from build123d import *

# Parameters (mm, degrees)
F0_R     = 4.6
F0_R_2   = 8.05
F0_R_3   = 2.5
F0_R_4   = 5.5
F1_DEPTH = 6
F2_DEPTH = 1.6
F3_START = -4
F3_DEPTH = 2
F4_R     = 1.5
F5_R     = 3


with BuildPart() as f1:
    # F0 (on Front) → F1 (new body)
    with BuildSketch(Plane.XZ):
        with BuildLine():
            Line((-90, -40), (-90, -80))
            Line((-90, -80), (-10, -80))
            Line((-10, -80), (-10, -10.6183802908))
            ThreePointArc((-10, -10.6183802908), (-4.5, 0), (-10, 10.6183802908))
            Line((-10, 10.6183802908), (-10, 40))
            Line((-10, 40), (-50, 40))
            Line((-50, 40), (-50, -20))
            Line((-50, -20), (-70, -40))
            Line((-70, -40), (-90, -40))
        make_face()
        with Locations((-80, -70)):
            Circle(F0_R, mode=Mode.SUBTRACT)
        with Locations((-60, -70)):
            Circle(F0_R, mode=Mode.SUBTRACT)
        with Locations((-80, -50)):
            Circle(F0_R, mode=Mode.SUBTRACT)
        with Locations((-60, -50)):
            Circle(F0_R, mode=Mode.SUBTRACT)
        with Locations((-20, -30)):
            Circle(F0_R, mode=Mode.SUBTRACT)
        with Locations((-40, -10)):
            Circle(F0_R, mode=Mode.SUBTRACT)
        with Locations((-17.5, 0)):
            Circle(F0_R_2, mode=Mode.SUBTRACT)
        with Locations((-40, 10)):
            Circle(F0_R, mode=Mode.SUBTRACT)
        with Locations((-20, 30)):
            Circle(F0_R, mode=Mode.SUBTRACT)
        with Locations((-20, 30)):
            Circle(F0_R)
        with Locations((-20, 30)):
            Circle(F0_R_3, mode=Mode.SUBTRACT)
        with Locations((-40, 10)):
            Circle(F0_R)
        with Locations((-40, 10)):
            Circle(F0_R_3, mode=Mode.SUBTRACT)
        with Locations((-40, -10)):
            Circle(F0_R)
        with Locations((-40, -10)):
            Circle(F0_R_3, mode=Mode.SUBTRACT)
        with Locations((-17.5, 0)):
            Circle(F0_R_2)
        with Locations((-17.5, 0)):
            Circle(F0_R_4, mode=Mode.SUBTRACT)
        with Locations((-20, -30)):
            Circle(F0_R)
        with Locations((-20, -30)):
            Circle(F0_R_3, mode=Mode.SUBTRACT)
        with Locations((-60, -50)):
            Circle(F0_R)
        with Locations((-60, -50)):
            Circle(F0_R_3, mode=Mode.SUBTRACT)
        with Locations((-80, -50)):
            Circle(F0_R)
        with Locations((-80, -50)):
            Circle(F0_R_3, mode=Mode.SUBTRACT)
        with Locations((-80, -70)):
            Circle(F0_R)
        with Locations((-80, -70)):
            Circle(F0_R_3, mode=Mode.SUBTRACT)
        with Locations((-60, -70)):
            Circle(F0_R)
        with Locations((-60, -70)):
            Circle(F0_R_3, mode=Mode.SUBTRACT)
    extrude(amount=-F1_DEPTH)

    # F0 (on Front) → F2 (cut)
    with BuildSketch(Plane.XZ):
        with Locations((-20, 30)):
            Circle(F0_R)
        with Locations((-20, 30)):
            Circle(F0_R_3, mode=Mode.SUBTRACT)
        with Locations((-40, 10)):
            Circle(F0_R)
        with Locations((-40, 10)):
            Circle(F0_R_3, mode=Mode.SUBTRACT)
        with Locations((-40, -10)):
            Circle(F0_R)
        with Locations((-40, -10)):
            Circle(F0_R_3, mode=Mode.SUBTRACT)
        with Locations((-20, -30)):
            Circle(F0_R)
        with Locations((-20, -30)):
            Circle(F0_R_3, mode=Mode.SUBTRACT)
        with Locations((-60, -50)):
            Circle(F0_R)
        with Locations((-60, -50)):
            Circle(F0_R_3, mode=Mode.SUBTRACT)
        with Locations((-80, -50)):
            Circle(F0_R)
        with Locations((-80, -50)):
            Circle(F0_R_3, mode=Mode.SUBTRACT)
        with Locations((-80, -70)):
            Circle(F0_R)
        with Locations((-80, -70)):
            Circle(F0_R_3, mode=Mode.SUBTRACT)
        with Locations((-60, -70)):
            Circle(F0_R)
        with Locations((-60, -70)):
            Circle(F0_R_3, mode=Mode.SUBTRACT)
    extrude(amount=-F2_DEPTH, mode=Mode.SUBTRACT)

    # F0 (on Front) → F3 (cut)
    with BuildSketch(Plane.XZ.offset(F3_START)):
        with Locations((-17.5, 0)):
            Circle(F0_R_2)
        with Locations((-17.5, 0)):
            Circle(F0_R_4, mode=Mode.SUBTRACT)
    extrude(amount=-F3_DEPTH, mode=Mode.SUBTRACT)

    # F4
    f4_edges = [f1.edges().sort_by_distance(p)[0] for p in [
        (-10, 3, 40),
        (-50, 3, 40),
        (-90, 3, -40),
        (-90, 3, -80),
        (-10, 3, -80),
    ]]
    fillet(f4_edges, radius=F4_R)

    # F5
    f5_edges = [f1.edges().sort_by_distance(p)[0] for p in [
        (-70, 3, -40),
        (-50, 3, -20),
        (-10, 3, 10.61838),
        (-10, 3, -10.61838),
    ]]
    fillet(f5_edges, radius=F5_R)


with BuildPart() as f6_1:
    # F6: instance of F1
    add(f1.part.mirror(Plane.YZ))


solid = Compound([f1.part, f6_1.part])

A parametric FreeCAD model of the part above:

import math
import FreeCAD as App
import Part
import Sketcher
from FreeCAD import Vector
Q = App.Units.Quantity


def edges_at(feature, points):
    """Names of the edges that pass closest to the given points."""
    edges = feature.Shape.Edges
    near = lambda p: min(range(len(edges)), key=lambda i: edges[i].distToShape(Part.Vertex(*p))[0])
    return sorted({f"Edge{near(p) + 1}" for p in points})

doc = App.newDocument("Part")
body = doc.addObject("PartDesign::Body", "Body")

# Sketch on XZ plane
sketch1 = body.newObject("Sketcher::SketchObject", "Sketch")
sketch1.AttachmentSupport = (doc.getObject("XZ_Plane"), [""])
sketch1.MapMode = "FlatFace"
sketch1.addGeometry([
    Part.LineSegment(Vector(-90, -40, 0), Vector(-90, -80, 0)),  # 0
    Part.LineSegment(Vector(-90, -80, 0), Vector(-10, -80, 0)),  # 1
    Part.LineSegment(Vector(-10, -80, 0), Vector(-10, -10.6, 0)),  # 2
    Part.ArcOfCircle(Part.Circle(Vector(-17.5, 0, 0), Vector(0, 0, 1), 13), math.radians(-55), math.radians(55)),  # 3
    Part.LineSegment(Vector(-10, 10.6, 0), Vector(-10, 40, 0)),  # 4
    Part.LineSegment(Vector(-10, 40, 0), Vector(-50, 40, 0)),  # 5
    Part.LineSegment(Vector(-50, 40, 0), Vector(-50, -20, 0)),  # 6
    Part.LineSegment(Vector(-50, -20, 0), Vector(-70, -40, 0)),  # 7
    Part.LineSegment(Vector(-70, -40, 0), Vector(-90, -40, 0)),  # 8
    Part.Circle(Vector(-80, -70, 0), Vector(0, 0, 1), 2.5),  # 9
    Part.Circle(Vector(-80, -50, 0), Vector(0, 0, 1), 2.5),  # 10
    Part.Circle(Vector(-60, -70, 0), Vector(0, 0, 1), 2.5),  # 11
    Part.Circle(Vector(-60, -50, 0), Vector(0, 0, 1), 2.5),  # 12
    Part.Circle(Vector(-20, -30, 0), Vector(0, 0, 1), 2.5),  # 13
    Part.Circle(Vector(-40, -10, 0), Vector(0, 0, 1), 2.5),  # 14
    Part.Circle(Vector(-17.5, 0, 0), Vector(0, 0, 1), 5.5),  # 15
    Part.Circle(Vector(-40, 10, 0), Vector(0, 0, 1), 2.5),  # 16
    Part.Circle(Vector(-20, 30, 0), Vector(0, 0, 1), 2.5),  # 17
], False)
sketch1.addConstraint([
    Sketcher.Constraint("Coincident", 0, 2, 1, 1),
    Sketcher.Constraint("Coincident", 1, 2, 2, 1),
    Sketcher.Constraint("Coincident", 2, 2, 3, 1),
    Sketcher.Constraint("Coincident", 3, 2, 4, 1),
    Sketcher.Constraint("Coincident", 4, 2, 5, 1),
    Sketcher.Constraint("Coincident", 5, 2, 6, 1),
    Sketcher.Constraint("Coincident", 6, 2, 7, 1),
    Sketcher.Constraint("Coincident", 7, 2, 8, 1),
    Sketcher.Constraint("Coincident", 8, 2, 0, 1),
    Sketcher.Constraint("Vertical", 0),
    Sketcher.Constraint("Horizontal", 1),
    Sketcher.Constraint("Vertical", 2),
    Sketcher.Constraint("Vertical", 4),
    Sketcher.Constraint("Horizontal", 5),
    Sketcher.Constraint("Vertical", 6),
    Sketcher.Constraint("Horizontal", 8),
    Sketcher.Constraint("Coincident", 15, 3, 3, 3),
    Sketcher.Constraint("Equal", 9, 10),
    Sketcher.Constraint("Equal", 10, 11),
    Sketcher.Constraint("Equal", 11, 12),
    Sketcher.Constraint("Equal", 12, 13),
    Sketcher.Constraint("Equal", 13, 14),
    Sketcher.Constraint("Equal", 14, 16),
    Sketcher.Constraint("Equal", 16, 17),
    Sketcher.Constraint("Symmetric", 14, 3, 16, 3, -1),
    Sketcher.Constraint("Symmetric", 13, 3, 17, 3, -1),
    Sketcher.Constraint("Symmetric", 2, 2, 3, 2, -1),
    Sketcher.Constraint("Horizontal", 9, 3, 11, 3),
    Sketcher.Constraint("Horizontal", 10, 3, 12, 3),
    Sketcher.Constraint("Vertical", 9, 3, 10, 3),
    Sketcher.Constraint("Vertical", 11, 3, 12, 3),
    Sketcher.Constraint("Equal", 5, 0),
    Sketcher.Constraint("Diameter", 9, Q("5 mm")),
    Sketcher.Constraint("Diameter", 15, Q("11 mm")),
    Sketcher.Constraint("Radius", 3, Q("13 mm")),
    Sketcher.Constraint("DistanceX", 1, 1, 1, 2, Q("80 mm")),
    Sketcher.Constraint("DistanceX", 5, 2, 5, 1, Q("40 mm")),
    Sketcher.Constraint("DistanceX", 8, 2, 8, 1, Q("20 mm")),
    Sketcher.Constraint("DistanceY", 6, 2, 6, 1, Q("60 mm")),
    Sketcher.Constraint("Angle", 7, Q("-135 deg")),
    Sketcher.Constraint("DistanceX", 9, 3, -1, 1, Q("80 mm")),
    Sketcher.Constraint("DistanceY", 9, 3, -1, 1, Q("70 mm")),
    Sketcher.Constraint("DistanceY", 10, 3, -1, 1, Q("50 mm")),
    Sketcher.Constraint("DistanceX", 11, 3, -1, 1, Q("60 mm")),
    Sketcher.Constraint("DistanceX", 13, 3, -1, 1, Q("20 mm")),
    Sketcher.Constraint("DistanceY", 13, 3, -1, 1, Q("30 mm")),
    Sketcher.Constraint("DistanceX", 14, 3, -1, 1, Q("40 mm")),
    Sketcher.Constraint("DistanceY", 14, 3, -1, 1, Q("10 mm")),
    Sketcher.Constraint("DistanceX", 0, 2, -1, 1, Q("90 mm")),
    Sketcher.Constraint("DistanceY", 0, 2, -1, 1, Q("80 mm")),
    Sketcher.Constraint("DistanceX", 3, 3, -1, 1, Q("17.5 mm")),
])
pad1 = body.newObject("PartDesign::Pad", "Pad")
pad1.Profile = sketch1
pad1.Length = 6
pad1.Reversed = True

# Sketch on XZ plane
sketch2 = body.newObject("Sketcher::SketchObject", "Sketch001")
sketch2.AttachmentSupport = (doc.getObject("XZ_Plane"), [""])
sketch2.MapMode = "FlatFace"
sketch2.addGeometry([
    Part.Circle(Vector(-20, 30, 0), Vector(0, 0, 1), 4.6),  # 0
    Part.Circle(Vector(-20, 30, 0), Vector(0, 0, 1), 2.5),  # 1
    Part.Circle(Vector(-40, 10, 0), Vector(0, 0, 1), 4.6),  # 2
    Part.Circle(Vector(-40, 10, 0), Vector(0, 0, 1), 2.5),  # 3
    Part.Circle(Vector(-40, -10, 0), Vector(0, 0, 1), 4.6),  # 4
    Part.Circle(Vector(-40, -10, 0), Vector(0, 0, 1), 2.5),  # 5
    Part.Circle(Vector(-20, -30, 0), Vector(0, 0, 1), 4.6),  # 6
    Part.Circle(Vector(-20, -30, 0), Vector(0, 0, 1), 2.5),  # 7
    Part.Circle(Vector(-60, -50, 0), Vector(0, 0, 1), 4.6),  # 8
    Part.Circle(Vector(-60, -50, 0), Vector(0, 0, 1), 2.5),  # 9
    Part.Circle(Vector(-80, -50, 0), Vector(0, 0, 1), 4.6),  # 10
    Part.Circle(Vector(-80, -50, 0), Vector(0, 0, 1), 2.5),  # 11
    Part.Circle(Vector(-80, -70, 0), Vector(0, 0, 1), 4.6),  # 12
    Part.Circle(Vector(-80, -70, 0), Vector(0, 0, 1), 2.5),  # 13
    Part.Circle(Vector(-60, -70, 0), Vector(0, 0, 1), 4.6),  # 14
    Part.Circle(Vector(-60, -70, 0), Vector(0, 0, 1), 2.5),  # 15
], False)
sketch2.addConstraint([
    Sketcher.Constraint("Coincident", 1, 3, 0, 3),
    Sketcher.Constraint("Coincident", 3, 3, 2, 3),
    Sketcher.Constraint("Coincident", 5, 3, 4, 3),
    Sketcher.Constraint("Coincident", 7, 3, 6, 3),
    Sketcher.Constraint("Coincident", 9, 3, 8, 3),
    Sketcher.Constraint("Coincident", 11, 3, 10, 3),
    Sketcher.Constraint("Coincident", 13, 3, 12, 3),
    Sketcher.Constraint("Coincident", 15, 3, 14, 3),
    Sketcher.Constraint("Equal", 0, 2),
    Sketcher.Constraint("Equal", 1, 3),
    Sketcher.Constraint("Equal", 2, 4),
    Sketcher.Constraint("Equal", 3, 5),
    Sketcher.Constraint("Equal", 4, 6),
    Sketcher.Constraint("Equal", 5, 7),
    Sketcher.Constraint("Equal", 6, 8),
    Sketcher.Constraint("Equal", 7, 9),
    Sketcher.Constraint("Equal", 8, 10),
    Sketcher.Constraint("Equal", 9, 11),
    Sketcher.Constraint("Equal", 10, 12),
    Sketcher.Constraint("Equal", 11, 13),
    Sketcher.Constraint("Equal", 12, 14),
    Sketcher.Constraint("Equal", 13, 15),
    Sketcher.Constraint("Symmetric", 2, 3, 4, 3, -1),
    Sketcher.Constraint("Symmetric", 0, 3, 6, 3, -1),
    Sketcher.Constraint("Horizontal", 9, 3, 10, 3),
    Sketcher.Constraint("Horizontal", 13, 3, 14, 3),
    Sketcher.Constraint("Vertical", 11, 3, 12, 3),
    Sketcher.Constraint("Vertical", 9, 3, 14, 3),
    Sketcher.Constraint("Diameter", 1, Q("5 mm")),
    Sketcher.Constraint("Diameter", 0, Q("9.2 mm")),
    Sketcher.Constraint("DistanceX", 0, 3, -1, 1, Q("20 mm")),
    Sketcher.Constraint("DistanceY", -1, 1, 0, 3, Q("30 mm")),
    Sketcher.Constraint("DistanceX", 2, 3, -1, 1, Q("40 mm")),
    Sketcher.Constraint("DistanceY", -1, 1, 2, 3, Q("10 mm")),
    Sketcher.Constraint("DistanceX", 8, 3, -1, 1, Q("60 mm")),
    Sketcher.Constraint("DistanceY", 8, 3, -1, 1, Q("50 mm")),
    Sketcher.Constraint("DistanceX", 10, 3, -1, 1, Q("80 mm")),
    Sketcher.Constraint("DistanceY", 12, 3, -1, 1, Q("70 mm")),
])
pocket1 = body.newObject("PartDesign::Pocket", "Pocket")
pocket1.Profile = sketch2
pocket1.Length = 1.6

# Sketch on XZ plane
sketch3 = body.newObject("Sketcher::SketchObject", "Sketch002")
sketch3.AttachmentSupport = (doc.getObject("XZ_Plane"), [""])
sketch3.MapMode = "FlatFace"
sketch3.AttachmentOffset = App.Placement(Vector(0, 0, -4), App.Rotation())
sketch3.addGeometry([
    Part.Circle(Vector(-18, 0, 0), Vector(0, 0, 1), 8),
    Part.Circle(Vector(-18, 0, 0), Vector(0, 0, 1), 6),
], False)
sketch3.addConstraint([
    Sketcher.Constraint("Coincident", 1, 3, 0, 3),
    Sketcher.Constraint("PointOnObject", 0, 3, -1),
    Sketcher.Constraint("Diameter", 1, Q("11 mm")),
    Sketcher.Constraint("Diameter", 0, Q("16.1 mm")),
    Sketcher.Constraint("DistanceX", 0, 3, -1, 1, Q("17.5 mm")),
])
pocket2 = body.newObject("PartDesign::Pocket", "Pocket001")
pocket2.Profile = sketch3
pocket2.Length = 2
doc.recompute()

fillet = body.newObject("PartDesign::Fillet", "Fillet")
fillet.Base = (pocket2, edges_at(pocket2, [
    (-10, 3, 40),
    (-50, 3, 40),
    (-90, 3, -40),
    (-90, 3, -80),
    (-10, 3, -80),
]))
fillet.Radius = 1.5
doc.recompute()

fillet2 = body.newObject("PartDesign::Fillet", "Fillet001")
fillet2.Base = (fillet, edges_at(fillet, [
    (-70, 3, -40),
    (-50, 3, -20),
    (-10, 3, 10.618),
    (-10, 3, -10.618),
]))
fillet2.Radius = 3
body2 = doc.addObject("PartDesign::Body", "Body001")
doc.recompute()

mirroring = doc.addObject("Part::Mirroring", "Mirroring")
mirroring.Source = body
mirroring.Base = Vector(0, 0, 0)
mirroring.Normal = Vector(1, 0, 0)
body2.BaseFeature = mirroring
doc.recompute()
mirroring.Visibility = False

doc.recompute()
